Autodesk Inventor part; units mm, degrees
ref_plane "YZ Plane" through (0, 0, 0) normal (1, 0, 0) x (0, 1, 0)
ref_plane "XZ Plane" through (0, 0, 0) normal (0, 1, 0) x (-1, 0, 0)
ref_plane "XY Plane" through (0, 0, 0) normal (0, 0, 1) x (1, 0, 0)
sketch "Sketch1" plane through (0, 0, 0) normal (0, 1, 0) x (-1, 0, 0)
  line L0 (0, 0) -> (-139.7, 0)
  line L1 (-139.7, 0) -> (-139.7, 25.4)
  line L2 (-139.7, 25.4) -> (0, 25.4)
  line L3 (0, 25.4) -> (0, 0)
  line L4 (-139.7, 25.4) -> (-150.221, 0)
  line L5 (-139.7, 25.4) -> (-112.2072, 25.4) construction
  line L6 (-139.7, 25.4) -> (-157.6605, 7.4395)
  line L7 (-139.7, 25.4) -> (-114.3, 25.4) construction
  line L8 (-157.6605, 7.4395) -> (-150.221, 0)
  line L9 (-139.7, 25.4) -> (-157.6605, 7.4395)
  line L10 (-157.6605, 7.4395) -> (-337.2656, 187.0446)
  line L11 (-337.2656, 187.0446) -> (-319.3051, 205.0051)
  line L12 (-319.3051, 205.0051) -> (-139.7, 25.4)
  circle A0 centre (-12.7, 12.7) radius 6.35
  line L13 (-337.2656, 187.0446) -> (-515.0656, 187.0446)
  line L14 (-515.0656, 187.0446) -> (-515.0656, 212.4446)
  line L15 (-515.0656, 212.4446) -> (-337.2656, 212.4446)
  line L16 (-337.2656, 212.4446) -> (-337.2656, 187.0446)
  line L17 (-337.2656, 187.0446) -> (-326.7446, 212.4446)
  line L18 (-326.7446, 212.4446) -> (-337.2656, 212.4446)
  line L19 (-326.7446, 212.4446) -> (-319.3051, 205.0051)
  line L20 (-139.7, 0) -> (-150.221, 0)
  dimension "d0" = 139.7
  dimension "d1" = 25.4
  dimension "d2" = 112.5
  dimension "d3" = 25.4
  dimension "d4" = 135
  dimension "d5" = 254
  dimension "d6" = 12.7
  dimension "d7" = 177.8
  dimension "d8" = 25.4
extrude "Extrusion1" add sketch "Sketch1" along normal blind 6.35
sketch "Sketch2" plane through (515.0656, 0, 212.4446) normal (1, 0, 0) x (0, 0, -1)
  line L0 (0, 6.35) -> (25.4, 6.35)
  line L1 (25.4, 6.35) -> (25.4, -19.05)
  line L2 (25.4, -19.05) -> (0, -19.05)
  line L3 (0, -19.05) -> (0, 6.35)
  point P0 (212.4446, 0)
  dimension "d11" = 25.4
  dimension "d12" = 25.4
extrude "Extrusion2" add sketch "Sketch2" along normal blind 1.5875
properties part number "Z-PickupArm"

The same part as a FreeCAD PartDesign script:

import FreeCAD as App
import Part
import Sketcher
from FreeCAD import Vector
Q = App.Units.Quantity


def add_polygon(sketch, points):
    """Adds a closed chain of lines whose ends are joined by coincident constraints."""
    first, n = sketch.GeometryCount, len(points)
    for a, b in zip(points, points[1:] + points[:1]):
        sketch.addGeometry(Part.LineSegment(App.Vector(*a, 0), App.Vector(*b, 0)), False)
    for i in range(n):
        sketch.addConstraint(Sketcher.Constraint("Coincident", first + i, 2, first + (i + 1) % n, 1))

doc = App.newDocument("Part")
body = doc.addObject("PartDesign::Body", "Body")

# Sketch on XZ plane
sketch1 = body.newObject("Sketcher::SketchObject", "Sketch")
sketch1.AttachmentSupport = (doc.getObject("XZ_Plane"), [""])
sketch1.MapMode = "FlatFace"
add_polygon(sketch1, [(0, 0), (0, 25.4), (139.7, 25.4), (326.7446, 212.4446), (515.0656, 212.4446), (515.0656, 187.0446), (337.2656, 187.0446), (150.221, 0)])  # lines 0-7
sketch1.addGeometry(Part.Circle(Vector(12.7, 12.7, 0), Vector(0, 0, 1), 6.35), False)  # 8
sketch1.addConstraint([
    Sketcher.Constraint("Vertical", 0),
    Sketcher.Constraint("Horizontal", 1),
    Sketcher.Constraint("Horizontal", 3),
    Sketcher.Constraint("Vertical", 4),
    Sketcher.Constraint("Horizontal", 5),
    Sketcher.Constraint("Horizontal", 7),
    Sketcher.Constraint("Coincident", 7, 2, -1, 1),
    Sketcher.Constraint("Parallel", 2, 6),
    Sketcher.Constraint("Equal", 0, 4),
    Sketcher.Constraint("Diameter", 8, Q("0.5 in")),
    Sketcher.Constraint("DistanceX", 5, 2, 5, 1, Q("7 in")),
    Sketcher.Constraint("DistanceY", 0, 1, 0, 2, Q("1 in")),
    Sketcher.Constraint("DistanceX", 1, 1, 1, 2, Q("5.5 in")),
    Sketcher.Constraint("Angle", 6, Q("-135 deg")),
    Sketcher.Constraint("DistanceX", -1, 1, 8, 3, Q("0.5 in")),
    Sketcher.Constraint("DistanceY", -1, 1, 8, 3, Q("0.5 in")),
    Sketcher.Constraint("DistanceX", 3, 1, 3, 2, Q("188.321 mm")),
    Sketcher.Constraint("Distance", 2, Q("264.521 mm")),
])
pad1 = body.newObject("PartDesign::Pad", "Pad")
pad1.Profile = sketch1
pad1.Length = Q("0.25 in")
pad1.Reversed = True

# Sketch on YZ plane
sketch2 = body.newObject("Sketcher::SketchObject", "Sketch001")
sketch2.AttachmentSupport = (doc.getObject("YZ_Plane"), [""])
sketch2.MapMode = "FlatFace"
sketch2.AttachmentOffset = App.Placement(Vector(0, 0, 515.0656), App.Rotation())
add_polygon(sketch2, [(6.35, 187.0446), (6.35, 212.4446), (-19.05, 212.4446), (-19.05, 187.0446)])  # lines 0-3
sketch2.addConstraint([
    Sketcher.Constraint("Vertical", 0),
    Sketcher.Constraint("Horizontal", 1),
    Sketcher.Constraint("Vertical", 2),
    Sketcher.Constraint("Horizontal", 3),
    Sketcher.Constraint("Equal", 3, 0),
    Sketcher.Constraint("DistanceX", 1, 2, 1, 1, Q("1 in")),
    Sketcher.Constraint("DistanceX", -1, 1, 0, 2, Q("0.25 in")),
    Sketcher.Constraint("DistanceY", -1, 1, 0, 2, Q("212.4446 mm")),
])
pad2 = body.newObject("PartDesign::Pad", "Pad001")
pad2.Profile = sketch2
pad2.Length = Q("0.0625 in")

doc.recompute()
